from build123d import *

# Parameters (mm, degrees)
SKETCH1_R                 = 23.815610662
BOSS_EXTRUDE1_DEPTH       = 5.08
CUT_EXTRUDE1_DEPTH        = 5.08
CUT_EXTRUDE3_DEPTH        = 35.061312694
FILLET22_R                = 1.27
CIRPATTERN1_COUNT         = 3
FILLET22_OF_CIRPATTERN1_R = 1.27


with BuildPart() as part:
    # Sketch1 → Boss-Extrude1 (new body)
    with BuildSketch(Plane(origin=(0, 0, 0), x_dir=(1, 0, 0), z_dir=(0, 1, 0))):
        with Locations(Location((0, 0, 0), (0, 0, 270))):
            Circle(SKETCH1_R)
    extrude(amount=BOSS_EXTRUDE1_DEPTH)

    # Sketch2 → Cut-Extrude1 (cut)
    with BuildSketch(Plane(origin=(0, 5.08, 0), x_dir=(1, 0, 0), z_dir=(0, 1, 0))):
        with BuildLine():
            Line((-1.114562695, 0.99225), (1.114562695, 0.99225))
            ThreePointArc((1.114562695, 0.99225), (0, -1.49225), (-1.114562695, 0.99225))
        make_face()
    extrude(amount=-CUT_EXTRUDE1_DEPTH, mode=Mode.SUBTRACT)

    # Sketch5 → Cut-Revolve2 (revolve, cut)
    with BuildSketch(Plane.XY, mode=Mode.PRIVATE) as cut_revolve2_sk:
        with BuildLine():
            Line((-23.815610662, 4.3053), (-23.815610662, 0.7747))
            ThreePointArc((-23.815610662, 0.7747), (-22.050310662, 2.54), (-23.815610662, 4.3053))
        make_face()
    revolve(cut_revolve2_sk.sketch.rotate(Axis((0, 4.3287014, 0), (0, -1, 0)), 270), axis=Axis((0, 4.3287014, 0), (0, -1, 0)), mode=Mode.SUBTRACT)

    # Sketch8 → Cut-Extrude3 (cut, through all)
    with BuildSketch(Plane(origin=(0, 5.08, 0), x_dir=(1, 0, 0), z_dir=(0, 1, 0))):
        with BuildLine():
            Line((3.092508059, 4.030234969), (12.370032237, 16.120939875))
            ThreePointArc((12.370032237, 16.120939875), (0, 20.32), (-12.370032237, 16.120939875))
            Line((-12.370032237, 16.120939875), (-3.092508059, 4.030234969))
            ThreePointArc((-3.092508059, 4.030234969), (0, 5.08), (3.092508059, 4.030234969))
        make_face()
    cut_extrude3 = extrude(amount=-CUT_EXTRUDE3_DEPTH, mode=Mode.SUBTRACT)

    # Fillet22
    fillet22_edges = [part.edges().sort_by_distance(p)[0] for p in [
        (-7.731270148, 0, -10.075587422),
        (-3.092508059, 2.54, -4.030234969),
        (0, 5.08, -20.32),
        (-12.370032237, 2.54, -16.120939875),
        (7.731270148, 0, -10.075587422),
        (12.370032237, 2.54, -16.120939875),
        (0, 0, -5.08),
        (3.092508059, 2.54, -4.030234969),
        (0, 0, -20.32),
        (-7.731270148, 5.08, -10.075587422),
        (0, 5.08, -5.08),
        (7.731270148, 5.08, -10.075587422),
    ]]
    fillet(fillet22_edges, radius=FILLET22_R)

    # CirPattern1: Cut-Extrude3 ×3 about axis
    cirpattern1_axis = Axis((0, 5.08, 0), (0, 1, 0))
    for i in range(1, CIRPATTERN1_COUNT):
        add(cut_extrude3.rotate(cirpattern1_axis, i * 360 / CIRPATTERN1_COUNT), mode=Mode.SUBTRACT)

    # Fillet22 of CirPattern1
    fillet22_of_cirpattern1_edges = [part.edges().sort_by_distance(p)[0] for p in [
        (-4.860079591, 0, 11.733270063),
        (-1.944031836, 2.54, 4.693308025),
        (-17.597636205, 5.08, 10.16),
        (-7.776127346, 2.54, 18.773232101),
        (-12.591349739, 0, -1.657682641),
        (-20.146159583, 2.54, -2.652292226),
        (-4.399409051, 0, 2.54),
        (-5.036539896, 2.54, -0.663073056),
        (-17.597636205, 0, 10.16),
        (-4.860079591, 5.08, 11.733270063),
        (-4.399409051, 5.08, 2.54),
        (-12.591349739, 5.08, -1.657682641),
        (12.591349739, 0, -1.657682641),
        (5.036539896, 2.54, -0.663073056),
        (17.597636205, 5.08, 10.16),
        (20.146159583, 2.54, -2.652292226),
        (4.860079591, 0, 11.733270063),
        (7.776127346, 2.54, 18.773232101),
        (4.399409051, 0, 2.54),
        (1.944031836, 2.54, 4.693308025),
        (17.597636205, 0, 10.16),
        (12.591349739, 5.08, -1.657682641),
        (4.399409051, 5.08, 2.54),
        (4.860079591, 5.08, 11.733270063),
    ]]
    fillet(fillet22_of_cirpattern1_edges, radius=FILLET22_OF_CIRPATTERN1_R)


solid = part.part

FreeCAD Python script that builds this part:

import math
import FreeCAD as App
import Part
import Sketcher
Q = App.Units.Quantity


def edges_at(feature, points):
    """Names of the edges that pass closest to the given points."""
    edges = feature.Shape.Edges
    near = lambda p: min(range(len(edges)), key=lambda i: edges[i].distToShape(Part.Vertex(*p))[0])
    return sorted({f"Edge{near(p) + 1}" for p in points})

doc = App.newDocument("Part")
body = doc.addObject("PartDesign::Body", "Body")

# Sketch on XZ plane
sketch1 = doc.addObject("Sketcher::SketchObject", "Sketch")
body.addObject(sketch1)
sketch1.AttachmentSupport = (doc.XZ_Plane, [""])
sketch1.MapMode = "FlatFace"
sketch1.addGeometry(Part.Circle(App.Vector(0, 0, 0), App.Vector(0, 0, 1), 23.815611), False)
sketch1.addConstraint([
    Sketcher.Constraint("Coincident", 0, 3, -1, 1),
    Sketcher.Constraint("Diameter", 0, Q("47.631221 mm")),
])
pad1 = doc.addObject("PartDesign::Pad", "Pad")
body.addObject(pad1)
pad1.Profile = sketch1
pad1.Length = Q("0.2 in")
pad1.Reversed = True

# Sketch on XZ plane
sketch2 = doc.addObject("Sketcher::SketchObject", "Sketch001")
body.addObject(sketch2)
sketch2.AttachmentSupport = (doc.XZ_Plane, [""])
sketch2.MapMode = "FlatFace"
sketch2.AttachmentOffset = App.Placement(App.Vector(0, 0, -0.2 * 25.4), App.Rotation())
sketch2.addGeometry([
    Part.LineSegment(App.Vector(1.114563, -0.99225, 0), App.Vector(-1.114563, -0.99225, 0)),
    Part.ArcOfCircle(Part.Circle(App.Vector(0, 0, 0), App.Vector(0, 0, 1), 1.49225), math.radians(-41.677377), math.radians(221.677377)),
], False)
sketch2.addConstraint([
    Sketcher.Constraint("Coincident", 0, 1, 1, 1),
    Sketcher.Constraint("Coincident", 1, 2, 0, 2),
    Sketcher.Constraint("Horizontal", 0),
    Sketcher.Constraint("Coincident", 1, 3, -1, 1),
    Sketcher.Constraint("Radius", 1, Q("1.49225 mm")),
    Sketcher.Constraint("DistanceX", 0, 2, 0, 1, Q("2.229125 mm")),
])
pocket1 = doc.addObject("PartDesign::Pocket", "Pocket")
body.addObject(pocket1)
pocket1.Profile = sketch2
pocket1.Length = Q("0.2 in")
pocket1.Reversed = True

# Sketch on XY plane
sketch3 = doc.addObject("Sketcher::SketchObject", "Sketch002")
body.addObject(sketch3)
sketch3.AttachmentSupport = (doc.XY_Plane, [""])
sketch3.MapMode = "FlatFace"
sketch3.addGeometry([
    Part.LineSegment(App.Vector(-23.815611, 4.3053, 0), App.Vector(-23.815611, 0.7747, 0)),
    Part.ArcOfCircle(Part.Circle(App.Vector(-23.815611, 2.54, 0), App.Vector(0, 0, 1), 1.7653), math.radians(-90), math.radians(90)),
], False)
sketch3.addConstraint([
    Sketcher.Constraint("Coincident", 0, 1, 1, 2),
    Sketcher.Constraint("Coincident", 1, 1, 0, 2),
    Sketcher.Constraint("Vertical", 0),
    Sketcher.Constraint("Vertical", 1, 3, 0, 1),
    Sketcher.Constraint("DistanceY", -1, 1, 1, 3, Q("0.1 in")),
    Sketcher.Constraint("Radius", 1, Q("0.0695 in")),
    Sketcher.Constraint("DistanceX", 1, 3, -1, 1, Q("23.815611 mm")),
])
groove = doc.addObject("PartDesign::Groove", "Groove")
body.addObject(groove)
groove.Profile = sketch3
groove.ReferenceAxis = (sketch3, ["V_Axis"])
groove.Angle = 360

# Sketch on XZ plane
sketch4 = doc.addObject("Sketcher::SketchObject", "Sketch003")
body.addObject(sketch4)
sketch4.AttachmentSupport = (doc.XZ_Plane, [""])
sketch4.MapMode = "FlatFace"
sketch4.AttachmentOffset = App.Placement(App.Vector(0, 0, -0.2 * 25.4), App.Rotation())
sketch4.addGeometry([
    Part.LineSegment(App.Vector(3.092508, -4.030235, 0), App.Vector(12.370032, -16.12094, 0)),
    Part.ArcOfCircle(Part.Circle(App.Vector(0, 0, 0), App.Vector(0, 0, 1), 20.32), math.radians(-127.5), math.radians(-52.5)),
    Part.LineSegment(App.Vector(-12.370032, -16.12094, 0), App.Vector(-3.092508, -4.030235, 0)),
    Part.ArcOfCircle(Part.Circle(App.Vector(0, 0, 0), App.Vector(0, 0, 1), 5.08), math.radians(-127.5), math.radians(-52.5)),
], False)
sketch4.addConstraint([
    Sketcher.Constraint("Coincident", 0, 2, 1, 2),
    Sketcher.Constraint("Coincident", 1, 1, 2, 1),
    Sketcher.Constraint("Coincident", 2, 2, 3, 1),
    Sketcher.Constraint("Coincident", 3, 2, 0, 1),
    Sketcher.Constraint("Coincident", 1, 3, -1, 1),
    Sketcher.Constraint("Coincident", 3, 3, -1, 1),
    Sketcher.Constraint("Horizontal", 0, 2, 1, 1),
    Sketcher.Constraint("Horizontal", 2, 2, 3, 2),
    Sketcher.Constraint("Radius", 1, Q("0.8 in")),
    Sketcher.Constraint("Radius", 3, Q("0.2 in")),
    Sketcher.Constraint("Angle", 0, Q("-52.5 deg")),
    Sketcher.Constraint("DistanceY", 0, 2, -1, 1, Q("16.12094 mm")),
])
pocket2 = doc.addObject("PartDesign::Pocket", "Pocket001")
body.addObject(pocket2)
pocket2.Profile = sketch4
pocket2.Type = "ThroughAll"
pocket2.Reversed = True
doc.recompute()

fillet = doc.addObject("PartDesign::Fillet", "Fillet")
body.addObject(fillet)
fillet.Base = (pocket2, edges_at(pocket2, [
    (-7.731, 0, -10.076),
    (-3.093, 2.54, -4.03),
    (0, 5.08, -20.32),
    (-12.37, 2.54, -16.121),
    (7.731, 0, -10.076),
    (12.37, 2.54, -16.121),
    (0, 0, -5.08),
    (3.093, 2.54, -4.03),
    (0, 0, -20.32),
    (-7.731, 5.08, -10.076),
    (0, 5.08, -5.08),
    (7.731, 5.08, -10.076),
]))
fillet.Radius = Q("0.05 in")
doc.recompute()

polarpattern = doc.addObject("PartDesign::PolarPattern", "PolarPattern")
body.addObject(polarpattern)
polarpattern.Originals = [pocket2]
polarpattern.Axis = (doc.Y_Axis, [""])
polarpattern.Angle = 360
polarpattern.Occurrences = 3
body.Tip = polarpattern
doc.recompute()

fillet2 = doc.addObject("PartDesign::Fillet", "Fillet001")
body.addObject(fillet2)
fillet2.Base = (polarpattern, edges_at(polarpattern, [
    (-4.86, 0, 11.733),
    (-1.944, 2.54, 4.693),
    (-17.598, 5.08, 10.16),
    (-7.776, 2.54, 18.773),
    (-12.591, 0, -1.658),
    (-20.146, 2.54, -2.652),
    (-4.399, 0, 2.54),
    (-5.037, 2.54, -0.663),
    (-17.598, 0, 10.16),
    (-4.86, 5.08, 11.733),
    (-4.399, 5.08, 2.54),
    (-12.591, 5.08, -1.658),
    (12.591, 0, -1.658),
    (5.037, 2.54, -0.663),
    (17.598, 5.08, 10.16),
    (20.146, 2.54, -2.652),
    (4.86, 0, 11.733),
    (7.776, 2.54, 18.773),
    (4.399, 0, 2.54),
    (1.944, 2.54, 4.693),
    (17.598, 0, 10.16),
    (12.591, 5.08, -1.658),
    (4.399, 5.08, 2.54),
    (4.86, 5.08, 11.733),
]))
fillet2.Radius = Q("0.05 in")

doc.recompute()
